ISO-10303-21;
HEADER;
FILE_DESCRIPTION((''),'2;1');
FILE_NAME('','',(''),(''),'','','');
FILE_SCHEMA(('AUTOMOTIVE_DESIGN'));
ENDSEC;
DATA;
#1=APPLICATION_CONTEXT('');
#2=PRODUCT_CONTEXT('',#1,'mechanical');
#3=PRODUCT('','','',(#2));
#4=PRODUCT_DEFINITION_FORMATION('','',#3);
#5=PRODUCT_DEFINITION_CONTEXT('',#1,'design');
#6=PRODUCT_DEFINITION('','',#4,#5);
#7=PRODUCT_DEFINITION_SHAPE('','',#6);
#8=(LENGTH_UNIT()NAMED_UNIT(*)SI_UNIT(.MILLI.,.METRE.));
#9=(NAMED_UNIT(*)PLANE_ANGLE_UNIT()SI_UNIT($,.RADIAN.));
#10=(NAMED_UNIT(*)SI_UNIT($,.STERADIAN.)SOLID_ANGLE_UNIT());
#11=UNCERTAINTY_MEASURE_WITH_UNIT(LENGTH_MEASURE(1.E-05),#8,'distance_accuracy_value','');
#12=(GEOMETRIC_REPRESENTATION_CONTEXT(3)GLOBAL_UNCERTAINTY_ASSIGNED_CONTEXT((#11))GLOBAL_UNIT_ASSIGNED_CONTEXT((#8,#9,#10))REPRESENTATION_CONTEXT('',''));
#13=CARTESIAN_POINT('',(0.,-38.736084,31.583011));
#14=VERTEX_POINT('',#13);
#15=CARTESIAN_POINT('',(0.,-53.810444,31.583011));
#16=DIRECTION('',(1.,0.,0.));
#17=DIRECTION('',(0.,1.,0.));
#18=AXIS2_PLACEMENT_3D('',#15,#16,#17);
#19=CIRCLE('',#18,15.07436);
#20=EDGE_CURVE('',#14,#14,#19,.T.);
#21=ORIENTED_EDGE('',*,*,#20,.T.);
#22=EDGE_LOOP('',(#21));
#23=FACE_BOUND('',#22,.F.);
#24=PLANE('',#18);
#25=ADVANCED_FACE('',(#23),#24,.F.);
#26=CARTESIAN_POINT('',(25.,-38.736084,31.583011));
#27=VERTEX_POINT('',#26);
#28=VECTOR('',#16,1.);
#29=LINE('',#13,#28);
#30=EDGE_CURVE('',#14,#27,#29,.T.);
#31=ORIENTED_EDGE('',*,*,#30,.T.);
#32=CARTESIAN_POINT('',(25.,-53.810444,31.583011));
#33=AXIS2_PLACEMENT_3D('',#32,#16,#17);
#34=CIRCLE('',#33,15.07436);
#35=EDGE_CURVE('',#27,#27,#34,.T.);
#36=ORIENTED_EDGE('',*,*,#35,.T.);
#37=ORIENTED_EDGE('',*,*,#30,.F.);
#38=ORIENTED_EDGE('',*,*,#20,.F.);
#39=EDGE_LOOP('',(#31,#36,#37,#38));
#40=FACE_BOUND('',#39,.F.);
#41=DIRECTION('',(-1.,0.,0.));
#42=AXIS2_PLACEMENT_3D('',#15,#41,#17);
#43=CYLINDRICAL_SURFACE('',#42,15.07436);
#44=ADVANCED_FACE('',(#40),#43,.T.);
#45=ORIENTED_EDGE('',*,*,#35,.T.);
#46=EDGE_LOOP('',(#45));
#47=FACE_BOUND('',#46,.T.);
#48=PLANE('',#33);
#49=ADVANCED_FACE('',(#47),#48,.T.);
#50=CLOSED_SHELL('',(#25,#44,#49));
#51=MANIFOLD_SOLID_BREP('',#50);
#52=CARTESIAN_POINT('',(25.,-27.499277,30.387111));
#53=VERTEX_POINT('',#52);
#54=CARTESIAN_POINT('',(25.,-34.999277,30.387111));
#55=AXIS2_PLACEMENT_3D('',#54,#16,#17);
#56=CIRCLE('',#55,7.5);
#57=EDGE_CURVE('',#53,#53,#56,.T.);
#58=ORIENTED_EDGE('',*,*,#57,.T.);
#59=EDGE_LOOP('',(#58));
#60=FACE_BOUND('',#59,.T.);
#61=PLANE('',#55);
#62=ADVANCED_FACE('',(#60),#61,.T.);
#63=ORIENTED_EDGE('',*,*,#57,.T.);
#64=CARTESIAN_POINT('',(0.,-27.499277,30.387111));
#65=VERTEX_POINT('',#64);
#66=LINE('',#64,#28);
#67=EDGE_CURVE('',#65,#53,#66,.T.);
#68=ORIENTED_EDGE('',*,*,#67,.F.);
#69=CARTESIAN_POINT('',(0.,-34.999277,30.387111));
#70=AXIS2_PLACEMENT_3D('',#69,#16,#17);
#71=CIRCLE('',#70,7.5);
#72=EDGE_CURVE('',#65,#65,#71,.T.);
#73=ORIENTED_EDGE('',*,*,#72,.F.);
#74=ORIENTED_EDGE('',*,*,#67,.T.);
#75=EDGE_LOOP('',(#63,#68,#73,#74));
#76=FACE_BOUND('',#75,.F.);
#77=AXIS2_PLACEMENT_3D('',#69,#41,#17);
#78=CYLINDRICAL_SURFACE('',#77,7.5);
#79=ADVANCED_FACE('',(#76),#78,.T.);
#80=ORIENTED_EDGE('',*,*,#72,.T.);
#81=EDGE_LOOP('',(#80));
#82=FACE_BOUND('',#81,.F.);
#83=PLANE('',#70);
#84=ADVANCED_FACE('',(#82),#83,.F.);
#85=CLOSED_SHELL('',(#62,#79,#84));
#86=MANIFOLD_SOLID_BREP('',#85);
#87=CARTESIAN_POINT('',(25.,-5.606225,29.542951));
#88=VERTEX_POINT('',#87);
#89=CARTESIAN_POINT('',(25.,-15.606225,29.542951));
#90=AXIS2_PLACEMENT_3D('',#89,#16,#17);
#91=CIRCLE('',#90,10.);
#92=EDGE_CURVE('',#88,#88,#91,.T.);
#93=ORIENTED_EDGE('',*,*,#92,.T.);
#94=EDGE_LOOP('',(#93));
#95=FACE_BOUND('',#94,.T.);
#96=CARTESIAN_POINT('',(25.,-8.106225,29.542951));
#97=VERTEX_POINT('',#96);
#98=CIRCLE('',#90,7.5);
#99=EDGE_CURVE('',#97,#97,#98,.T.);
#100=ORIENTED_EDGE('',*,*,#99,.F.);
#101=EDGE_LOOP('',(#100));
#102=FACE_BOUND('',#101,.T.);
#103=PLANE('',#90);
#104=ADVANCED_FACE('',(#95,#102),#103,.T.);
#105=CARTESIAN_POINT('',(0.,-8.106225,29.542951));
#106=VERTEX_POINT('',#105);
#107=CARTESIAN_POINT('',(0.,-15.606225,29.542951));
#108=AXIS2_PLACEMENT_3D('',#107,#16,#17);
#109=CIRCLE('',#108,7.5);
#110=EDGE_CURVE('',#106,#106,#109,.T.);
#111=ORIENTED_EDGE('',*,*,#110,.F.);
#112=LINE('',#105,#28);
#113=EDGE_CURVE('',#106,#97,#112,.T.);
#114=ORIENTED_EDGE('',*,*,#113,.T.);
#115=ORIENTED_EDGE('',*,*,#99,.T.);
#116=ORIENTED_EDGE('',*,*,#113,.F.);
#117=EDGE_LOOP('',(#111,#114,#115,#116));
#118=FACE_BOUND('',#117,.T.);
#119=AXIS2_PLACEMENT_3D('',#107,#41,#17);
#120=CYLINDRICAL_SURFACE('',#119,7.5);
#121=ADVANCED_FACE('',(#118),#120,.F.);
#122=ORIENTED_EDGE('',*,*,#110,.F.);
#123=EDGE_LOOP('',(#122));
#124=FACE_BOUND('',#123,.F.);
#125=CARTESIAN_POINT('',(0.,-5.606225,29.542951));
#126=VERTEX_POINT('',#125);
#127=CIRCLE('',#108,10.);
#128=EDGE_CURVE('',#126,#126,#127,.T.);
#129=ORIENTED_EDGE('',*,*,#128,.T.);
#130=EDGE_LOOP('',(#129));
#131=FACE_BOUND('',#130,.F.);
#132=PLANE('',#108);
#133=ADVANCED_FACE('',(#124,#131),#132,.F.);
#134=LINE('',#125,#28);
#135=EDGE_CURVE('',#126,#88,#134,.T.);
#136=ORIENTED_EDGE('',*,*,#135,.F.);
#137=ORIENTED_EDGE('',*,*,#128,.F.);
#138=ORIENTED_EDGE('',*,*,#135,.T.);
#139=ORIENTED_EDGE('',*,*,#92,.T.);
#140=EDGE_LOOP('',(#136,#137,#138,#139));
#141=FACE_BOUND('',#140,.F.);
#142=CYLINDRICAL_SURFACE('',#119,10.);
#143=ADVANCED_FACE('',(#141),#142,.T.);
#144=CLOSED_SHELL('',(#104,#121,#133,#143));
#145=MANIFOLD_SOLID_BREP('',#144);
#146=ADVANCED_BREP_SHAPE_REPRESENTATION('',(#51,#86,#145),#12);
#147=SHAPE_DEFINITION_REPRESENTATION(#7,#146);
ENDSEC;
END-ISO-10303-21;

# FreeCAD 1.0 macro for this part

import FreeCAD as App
import Part
import Sketcher

doc = App.newDocument("Part")
params = doc.addObject("Spreadsheet::Sheet", "Params")
for row, (alias, value) in enumerate([
    ("pad1_length", "25 mm"),
    ("sketch2_diameter", "15 mm"),
    ("pad2_length", "25 mm"),
    ("sketch3_diameter", "20 mm"),
    ("sketch3_diameter2", "15 mm"),
    ("pad3_length", "25 mm"),
], start=1):
    params.set(f"A{row}", alias)
    params.set(f"B{row}", "=" + value)
    params.setAlias(f"B{row}", alias)

body = doc.addObject("PartDesign::Body", "Body")

sketch1 = body.newObject("Sketcher::SketchObject", "Sketch")
sketch1.AttachmentSupport = (doc.getObject("YZ_Plane"), [""])
sketch1.MapMode = "FlatFace"
sketch1.addGeometry(Part.Circle(App.Vector(-54, 32, 0), App.Vector(0, 0, 1), 15), False)
sketch1.addConstraint([
    Sketcher.Constraint("Diameter", 0, 30.14872),
    Sketcher.Constraint("DistanceY", -1, 1, 0, 3, 31.583011),
    Sketcher.Constraint("DistanceX", 0, 3, -1, 1, 53.810444),
])
pad1 = body.newObject("PartDesign::Pad", "Pad")
pad1.Profile = sketch1
pad1.setExpression("Length", "Params.pad1_length")
body2 = doc.addObject("PartDesign::Body", "Body001")

sketch2 = body2.newObject("Sketcher::SketchObject", "Sketch001")
sketch2.AttachmentSupport = (doc.getObject("YZ_Plane001"), [""])
sketch2.MapMode = "FlatFace"
sketch2.addGeometry(Part.Circle(App.Vector(-35, 30, 0), App.Vector(0, 0, 1), 8), False)
sketch2.addConstraint([
    Sketcher.Constraint("Diameter", 0, 15.0),
    Sketcher.Constraint("DistanceY", -1, 1, 0, 3, 30.387111),
    Sketcher.Constraint("DistanceX", 0, 3, -1, 1, 34.999277),
])
sketch2.setExpression("Constraints[0]", "Params.sketch2_diameter")
pad2 = body2.newObject("PartDesign::Pad", "Pad001")
pad2.Profile = sketch2
pad2.setExpression("Length", "Params.pad2_length")
body3 = doc.addObject("PartDesign::Body", "Body002")

sketch3 = body3.newObject("Sketcher::SketchObject", "Sketch002")
sketch3.AttachmentSupport = (doc.getObject("YZ_Plane002"), [""])
sketch3.MapMode = "FlatFace"
sketch3.addGeometry([
    Part.Circle(App.Vector(-16, 30, 0), App.Vector(0, 0, 1), 10),
    Part.Circle(App.Vector(-16, 30, 0), App.Vector(0, 0, 1), 8),
], False)
sketch3.addConstraint([
    Sketcher.Constraint("Coincident", 1, 3, 0, 3),
    Sketcher.Constraint("Diameter", 0, 20.0),
    Sketcher.Constraint("Diameter", 1, 15.0),
    Sketcher.Constraint("DistanceY", -1, 1, 0, 3, 29.542951),
    Sketcher.Constraint("DistanceX", 0, 3, -1, 1, 15.606225),
])
sketch3.setExpression("Constraints[1]", "Params.sketch3_diameter")
sketch3.setExpression("Constraints[2]", "Params.sketch3_diameter2")
pad3 = body3.newObject("PartDesign::Pad", "Pad002")
pad3.Profile = sketch3
pad3.setExpression("Length", "Params.pad3_length")

doc.recompute()
